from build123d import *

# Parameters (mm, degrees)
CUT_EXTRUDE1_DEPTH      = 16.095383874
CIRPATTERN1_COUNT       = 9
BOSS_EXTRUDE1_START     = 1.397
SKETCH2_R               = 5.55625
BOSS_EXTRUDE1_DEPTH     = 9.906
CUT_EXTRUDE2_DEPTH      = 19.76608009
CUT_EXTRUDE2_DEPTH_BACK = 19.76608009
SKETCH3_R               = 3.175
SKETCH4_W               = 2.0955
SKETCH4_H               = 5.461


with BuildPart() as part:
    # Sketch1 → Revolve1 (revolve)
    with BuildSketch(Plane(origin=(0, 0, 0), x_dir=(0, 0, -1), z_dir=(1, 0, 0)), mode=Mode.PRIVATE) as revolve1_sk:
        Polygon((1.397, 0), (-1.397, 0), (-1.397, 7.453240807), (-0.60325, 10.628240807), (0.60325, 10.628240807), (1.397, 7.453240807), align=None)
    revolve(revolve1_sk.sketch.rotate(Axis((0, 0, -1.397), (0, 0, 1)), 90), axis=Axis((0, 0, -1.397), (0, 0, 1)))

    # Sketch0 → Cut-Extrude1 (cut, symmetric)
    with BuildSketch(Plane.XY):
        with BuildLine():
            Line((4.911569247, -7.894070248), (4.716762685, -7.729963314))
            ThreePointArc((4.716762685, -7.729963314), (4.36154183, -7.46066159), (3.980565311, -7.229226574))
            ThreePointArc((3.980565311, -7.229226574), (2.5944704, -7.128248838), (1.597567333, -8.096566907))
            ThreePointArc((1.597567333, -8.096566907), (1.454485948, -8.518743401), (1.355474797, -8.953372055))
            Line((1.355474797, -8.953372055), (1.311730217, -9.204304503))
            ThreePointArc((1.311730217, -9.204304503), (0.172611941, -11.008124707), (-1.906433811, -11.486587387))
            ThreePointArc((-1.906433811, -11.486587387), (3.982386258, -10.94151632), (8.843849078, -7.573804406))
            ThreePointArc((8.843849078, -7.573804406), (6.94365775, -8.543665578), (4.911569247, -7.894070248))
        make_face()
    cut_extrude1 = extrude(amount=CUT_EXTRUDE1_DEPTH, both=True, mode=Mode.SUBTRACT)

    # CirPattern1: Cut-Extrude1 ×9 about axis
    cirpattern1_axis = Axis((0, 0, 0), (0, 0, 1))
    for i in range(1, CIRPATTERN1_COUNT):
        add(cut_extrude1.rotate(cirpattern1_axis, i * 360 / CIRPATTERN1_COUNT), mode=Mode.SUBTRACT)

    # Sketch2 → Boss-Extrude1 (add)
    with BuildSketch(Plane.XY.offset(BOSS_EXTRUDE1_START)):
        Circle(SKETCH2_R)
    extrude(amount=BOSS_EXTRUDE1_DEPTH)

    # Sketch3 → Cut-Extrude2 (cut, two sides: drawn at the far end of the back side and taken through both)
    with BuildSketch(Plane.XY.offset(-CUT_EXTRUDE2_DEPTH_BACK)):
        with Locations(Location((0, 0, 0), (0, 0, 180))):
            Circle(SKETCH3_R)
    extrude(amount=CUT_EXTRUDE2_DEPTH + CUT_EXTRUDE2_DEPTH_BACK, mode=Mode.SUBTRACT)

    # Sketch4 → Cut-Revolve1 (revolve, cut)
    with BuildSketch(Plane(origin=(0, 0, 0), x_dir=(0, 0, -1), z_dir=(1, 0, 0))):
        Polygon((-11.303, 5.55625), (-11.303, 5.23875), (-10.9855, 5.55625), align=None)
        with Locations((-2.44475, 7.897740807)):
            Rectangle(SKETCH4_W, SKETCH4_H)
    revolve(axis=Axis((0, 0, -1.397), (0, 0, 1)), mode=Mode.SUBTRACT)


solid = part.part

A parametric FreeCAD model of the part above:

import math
import FreeCAD as App
import Part
import Sketcher

V = App.Vector
Q = App.Units.Quantity

doc = App.newDocument("Part")
body = doc.addObject("PartDesign::Body", "Body")

# Sketch on YZ plane
sketch1 = body.newObject("Sketcher::SketchObject", "Sketch")
sketch1.AttachmentSupport = (doc.getObject("YZ_Plane"), [""])
sketch1.MapMode = "FlatFace"
sketch1.addGeometry(Part.LineSegment(V(0, 1.4, 0), V(0, -1.4, 0)), False)
sketch1.addGeometry(Part.LineSegment(V(0, -1.4, 0), V(7.5, -1.4, 0)), False)
sketch1.addGeometry(Part.LineSegment(V(7.5, -1.4, 0), V(10.6, -0.6, 0)), False)
sketch1.addGeometry(Part.LineSegment(V(10.6, -0.6, 0), V(10.6, 0.6, 0)), False)
sketch1.addGeometry(Part.LineSegment(V(10.6, 0.6, 0), V(7.5, 1.4, 0)), False)
sketch1.addGeometry(Part.LineSegment(V(7.5, 1.4, 0), V(0, 1.4, 0)), False)
sketch1.addConstraint(Sketcher.Constraint("Coincident", 0, 2, 1, 1))
sketch1.addConstraint(Sketcher.Constraint("Coincident", 1, 2, 2, 1))
sketch1.addConstraint(Sketcher.Constraint("Coincident", 2, 2, 3, 1))
sketch1.addConstraint(Sketcher.Constraint("Coincident", 3, 2, 4, 1))
sketch1.addConstraint(Sketcher.Constraint("Coincident", 4, 2, 5, 1))
sketch1.addConstraint(Sketcher.Constraint("Coincident", 5, 2, 0, 1))
sketch1.addConstraint(Sketcher.Constraint("Vertical", 0))
sketch1.addConstraint(Sketcher.Constraint("Horizontal", 1))
sketch1.addConstraint(Sketcher.Constraint("Vertical", 3))
sketch1.addConstraint(Sketcher.Constraint("Horizontal", 5))
sketch1.addConstraint(Sketcher.Constraint("Symmetric", 0, 2, 5, 2, -1, 1))
sketch1.addConstraint(Sketcher.Constraint("Vertical", 1, 2, 4, 2))
sketch1.addConstraint(Sketcher.Constraint("Equal", 2, 4))
sketch1.addConstraint(Sketcher.Constraint("DistanceY", 0, 2, 0, 1, Q("0.11 in")))
sketch1.addConstraint(Sketcher.Constraint("DistanceY", 3, 1, 3, 2, Q("0.0475 in")))
sketch1.addConstraint(Sketcher.Constraint("DistanceX", 1, 2, 2, 2, Q("0.125 in")))
sketch1.addConstraint(Sketcher.Constraint("DistanceX", 1, 1, 1, 2, Q("7.453241 mm")))
revolution = body.newObject("PartDesign::Revolution", "Revolution")
revolution.Profile = sketch1
revolution.ReferenceAxis = (sketch1, ["V_Axis"])
revolution.Angle = 360

# Sketch on XY plane
sketch2 = body.newObject("Sketcher::SketchObject", "Sketch001")
sketch2.AttachmentSupport = (doc.getObject("XY_Plane"), [""])
sketch2.MapMode = "FlatFace"
sketch2.addGeometry(Part.LineSegment(V(4.91, -7.89, 0), V(4.72, -7.73, 0)), False)
sketch2.addGeometry(Part.ArcOfCircle(Part.Circle(V(1.92, -11.05, 0), V(0, 0, 1), 4.34), math.radians(49.89), math.radians(61.67)), False)
sketch2.addGeometry(Part.ArcOfCircle(Part.Circle(V(3.17, -8.72, 0), V(0, 0, 1), 1.7), math.radians(62), math.radians(158)), False)
sketch2.addGeometry(Part.ArcOfCircle(Part.Circle(V(5.63, -9.7, 0), V(0, 0, 1), 4.34), math.radians(158.33), math.radians(170.11)), False)
sketch2.addGeometry(Part.LineSegment(V(1.36, -8.95, 0), V(1.31, -9.2, 0)), False)
sketch2.addGeometry(Part.ArcOfCircle(Part.Circle(V(-1.45, -8.72, 0), V(0, 0, 1), 2.8), math.radians(-99), math.radians(-10)), False)
sketch2.addGeometry(Part.ArcOfCircle(Part.Circle(V(0, 0, 0), V(0, 0, 1), 11.64), math.radians(-99), math.radians(-41)), False)
sketch2.addGeometry(Part.ArcOfCircle(Part.Circle(V(6.72, -5.75, 0), V(0, 0, 1), 2.8), math.radians(-130), math.radians(-41)), False)
sketch2.addConstraint(Sketcher.Constraint("Tangent", 0, 2, 1, 1))
sketch2.addConstraint(Sketcher.Constraint("Tangent", 1, 2, 2, 1))
sketch2.addConstraint(Sketcher.Constraint("Tangent", 2, 2, 3, 1))
sketch2.addConstraint(Sketcher.Constraint("Tangent", 3, 2, 4, 1))
sketch2.addConstraint(Sketcher.Constraint("Tangent", 4, 2, 5, 2))
sketch2.addConstraint(Sketcher.Constraint("Tangent", 5, 1, 6, 1))
sketch2.addConstraint(Sketcher.Constraint("Tangent", 6, 2, 7, 2))
sketch2.addConstraint(Sketcher.Constraint("Tangent", 7, 1, 0, 1))
sketch2.addConstraint(Sketcher.Constraint("Coincident", 6, 3, -1, 1))
sketch2.addConstraint(Sketcher.Constraint("Equal", 1, 3))
sketch2.addConstraint(Sketcher.Constraint("Equal", 5, 7))
sketch2.addConstraint(Sketcher.Constraint("Horizontal", 2, 3, 5, 3))
sketch2.addConstraint(Sketcher.Constraint("Equal", 0, 4))
sketch2.addConstraint(Sketcher.Constraint("DistanceX", -1, 1, 2, 3, Q("0.125 in")))
sketch2.addConstraint(Sketcher.Constraint("DistanceX", 5, 3, -1, 1, Q("0.057 in")))
sketch2.addConstraint(Sketcher.Constraint("Radius", 6, Q("11.643718 mm")))
sketch2.addConstraint(Sketcher.Constraint("Radius", 1, Q("4.338955 mm")))
sketch2.addConstraint(Sketcher.Constraint("Radius", 2, Q("1.697355 mm")))
sketch2.addConstraint(Sketcher.Constraint("Radius", 5, Q("2.801148 mm")))
sketch2.addConstraint(Sketcher.Constraint("DistanceX", 0, 2, 3, 3, Q("0.913202 mm")))
sketch2.addConstraint(Sketcher.Constraint("DistanceY", 0, 2, 7, 3, Q("1.978201 mm")))
pocket1 = body.newObject("PartDesign::Pocket", "Pocket")
pocket1.Profile = sketch2
pocket1.Length = 32.190768
pocket1.Midplane = True
doc.recompute()

polarpattern = body.newObject("PartDesign::PolarPattern", "PolarPattern")
polarpattern.Originals = [pocket1]
polarpattern.Axis = (doc.getObject("Z_Axis"), [""])
polarpattern.Angle = 360
polarpattern.Occurrences = 9
body.Tip = polarpattern

# Sketch on XY plane
sketch3 = body.newObject("Sketcher::SketchObject", "Sketch002")
sketch3.AttachmentSupport = (doc.getObject("XY_Plane"), [""])
sketch3.MapMode = "FlatFace"
sketch3.AttachmentOffset = App.Placement(V(0, 0, 0.055 * 25.4), App.Rotation())
sketch3.addGeometry(Part.Circle(V(0, 0, 0), V(0, 0, 1), 6), False)
sketch3.addConstraint(Sketcher.Constraint("Coincident", 0, 3, -1, 1))
sketch3.addConstraint(Sketcher.Constraint("Diameter", 0, Q("0.4375 in")))
pad1 = body.newObject("PartDesign::Pad", "Pad")
pad1.Profile = sketch3
pad1.Length = Q("0.39 in")

# Sketch on XY plane
sketch4 = body.newObject("Sketcher::SketchObject", "Sketch003")
sketch4.AttachmentSupport = (doc.getObject("XY_Plane"), [""])
sketch4.MapMode = "FlatFace"
sketch4.addGeometry(Part.Circle(V(0, 0, 0), V(0, 0, 1), 3.2), False)
sketch4.addConstraint(Sketcher.Constraint("Coincident", 0, 3, -1, 1))
sketch4.addConstraint(Sketcher.Constraint("Diameter", 0, Q("0.25 in")))
pocket2 = body.newObject("PartDesign::Pocket", "Pocket001")
pocket2.Profile = sketch4
pocket2.Type = "ThroughAll"
pocket2.Midplane = True

# Sketch on YZ plane
sketch5 = body.newObject("Sketcher::SketchObject", "Sketch004")
sketch5.AttachmentSupport = (doc.getObject("YZ_Plane"), [""])
sketch5.MapMode = "FlatFace"
sketch5.addGeometry(Part.LineSegment(V(5.56, 11.3, 0), V(5.24, 11.3, 0)), False)
sketch5.addGeometry(Part.LineSegment(V(5.24, 11.3, 0), V(5.56, 10.99, 0)), False)
sketch5.addGeometry(Part.LineSegment(V(5.56, 10.99, 0), V(5.56, 11.3, 0)), False)
sketch5.addGeometry(Part.LineSegment(V(10.63, 3.49, 0), V(5.17, 3.49, 0)), False)
sketch5.addGeometry(Part.LineSegment(V(5.17, 3.49, 0), V(5.17, 1.4, 0)), False)
sketch5.addGeometry(Part.LineSegment(V(5.17, 1.4, 0), V(10.63, 1.4, 0)), False)
sketch5.addGeometry(Part.LineSegment(V(10.63, 1.4, 0), V(10.63, 3.49, 0)), False)
sketch5.addConstraint(Sketcher.Constraint("Coincident", 0, 2, 1, 1))
sketch5.addConstraint(Sketcher.Constraint("Coincident", 1, 2, 2, 1))
sketch5.addConstraint(Sketcher.Constraint("Coincident", 2, 2, 0, 1))
sketch5.addConstraint(Sketcher.Constraint("Coincident", 3, 2, 4, 1))
sketch5.addConstraint(Sketcher.Constraint("Coincident", 4, 2, 5, 1))
sketch5.addConstraint(Sketcher.Constraint("Coincident", 5, 2, 6, 1))
sketch5.addConstraint(Sketcher.Constraint("Coincident", 6, 2, 3, 1))
sketch5.addConstraint(Sketcher.Constraint("Horizontal", 0))
sketch5.addConstraint(Sketcher.Constraint("Vertical", 2))
sketch5.addConstraint(Sketcher.Constraint("Horizontal", 3))
sketch5.addConstraint(Sketcher.Constraint("Vertical", 4))
sketch5.addConstraint(Sketcher.Constraint("Horizontal", 5))
sketch5.addConstraint(Sketcher.Constraint("Vertical", 6))
sketch5.addConstraint(Sketcher.Constraint("Equal", 0, 2))
sketch5.addConstraint(Sketcher.Constraint("DistanceX", 3, 2, 3, 1, Q("0.215 in")))
sketch5.addConstraint(Sketcher.Constraint("DistanceY", 4, 2, 0, 2, Q("0.39 in")))
sketch5.addConstraint(Sketcher.Constraint("DistanceX", 0, 2, 0, 1, Q("0.0125 in")))
sketch5.addConstraint(Sketcher.Constraint("DistanceY", 4, 2, 4, 1, Q("0.0825 in")))
sketch5.addConstraint(Sketcher.Constraint("DistanceY", -1, 1, 0, 2, Q("0.445 in")))
sketch5.addConstraint(Sketcher.Constraint("DistanceX", -1, 1, 1, 2, Q("0.21875 in")))
sketch5.addConstraint(Sketcher.Constraint("DistanceX", -1, 1, 3, 2, Q("5.167241 mm")))
groove = body.newObject("PartDesign::Groove", "Groove")
groove.Profile = sketch5
groove.ReferenceAxis = (sketch5, ["V_Axis"])
groove.Angle = 360

doc.recompute()
